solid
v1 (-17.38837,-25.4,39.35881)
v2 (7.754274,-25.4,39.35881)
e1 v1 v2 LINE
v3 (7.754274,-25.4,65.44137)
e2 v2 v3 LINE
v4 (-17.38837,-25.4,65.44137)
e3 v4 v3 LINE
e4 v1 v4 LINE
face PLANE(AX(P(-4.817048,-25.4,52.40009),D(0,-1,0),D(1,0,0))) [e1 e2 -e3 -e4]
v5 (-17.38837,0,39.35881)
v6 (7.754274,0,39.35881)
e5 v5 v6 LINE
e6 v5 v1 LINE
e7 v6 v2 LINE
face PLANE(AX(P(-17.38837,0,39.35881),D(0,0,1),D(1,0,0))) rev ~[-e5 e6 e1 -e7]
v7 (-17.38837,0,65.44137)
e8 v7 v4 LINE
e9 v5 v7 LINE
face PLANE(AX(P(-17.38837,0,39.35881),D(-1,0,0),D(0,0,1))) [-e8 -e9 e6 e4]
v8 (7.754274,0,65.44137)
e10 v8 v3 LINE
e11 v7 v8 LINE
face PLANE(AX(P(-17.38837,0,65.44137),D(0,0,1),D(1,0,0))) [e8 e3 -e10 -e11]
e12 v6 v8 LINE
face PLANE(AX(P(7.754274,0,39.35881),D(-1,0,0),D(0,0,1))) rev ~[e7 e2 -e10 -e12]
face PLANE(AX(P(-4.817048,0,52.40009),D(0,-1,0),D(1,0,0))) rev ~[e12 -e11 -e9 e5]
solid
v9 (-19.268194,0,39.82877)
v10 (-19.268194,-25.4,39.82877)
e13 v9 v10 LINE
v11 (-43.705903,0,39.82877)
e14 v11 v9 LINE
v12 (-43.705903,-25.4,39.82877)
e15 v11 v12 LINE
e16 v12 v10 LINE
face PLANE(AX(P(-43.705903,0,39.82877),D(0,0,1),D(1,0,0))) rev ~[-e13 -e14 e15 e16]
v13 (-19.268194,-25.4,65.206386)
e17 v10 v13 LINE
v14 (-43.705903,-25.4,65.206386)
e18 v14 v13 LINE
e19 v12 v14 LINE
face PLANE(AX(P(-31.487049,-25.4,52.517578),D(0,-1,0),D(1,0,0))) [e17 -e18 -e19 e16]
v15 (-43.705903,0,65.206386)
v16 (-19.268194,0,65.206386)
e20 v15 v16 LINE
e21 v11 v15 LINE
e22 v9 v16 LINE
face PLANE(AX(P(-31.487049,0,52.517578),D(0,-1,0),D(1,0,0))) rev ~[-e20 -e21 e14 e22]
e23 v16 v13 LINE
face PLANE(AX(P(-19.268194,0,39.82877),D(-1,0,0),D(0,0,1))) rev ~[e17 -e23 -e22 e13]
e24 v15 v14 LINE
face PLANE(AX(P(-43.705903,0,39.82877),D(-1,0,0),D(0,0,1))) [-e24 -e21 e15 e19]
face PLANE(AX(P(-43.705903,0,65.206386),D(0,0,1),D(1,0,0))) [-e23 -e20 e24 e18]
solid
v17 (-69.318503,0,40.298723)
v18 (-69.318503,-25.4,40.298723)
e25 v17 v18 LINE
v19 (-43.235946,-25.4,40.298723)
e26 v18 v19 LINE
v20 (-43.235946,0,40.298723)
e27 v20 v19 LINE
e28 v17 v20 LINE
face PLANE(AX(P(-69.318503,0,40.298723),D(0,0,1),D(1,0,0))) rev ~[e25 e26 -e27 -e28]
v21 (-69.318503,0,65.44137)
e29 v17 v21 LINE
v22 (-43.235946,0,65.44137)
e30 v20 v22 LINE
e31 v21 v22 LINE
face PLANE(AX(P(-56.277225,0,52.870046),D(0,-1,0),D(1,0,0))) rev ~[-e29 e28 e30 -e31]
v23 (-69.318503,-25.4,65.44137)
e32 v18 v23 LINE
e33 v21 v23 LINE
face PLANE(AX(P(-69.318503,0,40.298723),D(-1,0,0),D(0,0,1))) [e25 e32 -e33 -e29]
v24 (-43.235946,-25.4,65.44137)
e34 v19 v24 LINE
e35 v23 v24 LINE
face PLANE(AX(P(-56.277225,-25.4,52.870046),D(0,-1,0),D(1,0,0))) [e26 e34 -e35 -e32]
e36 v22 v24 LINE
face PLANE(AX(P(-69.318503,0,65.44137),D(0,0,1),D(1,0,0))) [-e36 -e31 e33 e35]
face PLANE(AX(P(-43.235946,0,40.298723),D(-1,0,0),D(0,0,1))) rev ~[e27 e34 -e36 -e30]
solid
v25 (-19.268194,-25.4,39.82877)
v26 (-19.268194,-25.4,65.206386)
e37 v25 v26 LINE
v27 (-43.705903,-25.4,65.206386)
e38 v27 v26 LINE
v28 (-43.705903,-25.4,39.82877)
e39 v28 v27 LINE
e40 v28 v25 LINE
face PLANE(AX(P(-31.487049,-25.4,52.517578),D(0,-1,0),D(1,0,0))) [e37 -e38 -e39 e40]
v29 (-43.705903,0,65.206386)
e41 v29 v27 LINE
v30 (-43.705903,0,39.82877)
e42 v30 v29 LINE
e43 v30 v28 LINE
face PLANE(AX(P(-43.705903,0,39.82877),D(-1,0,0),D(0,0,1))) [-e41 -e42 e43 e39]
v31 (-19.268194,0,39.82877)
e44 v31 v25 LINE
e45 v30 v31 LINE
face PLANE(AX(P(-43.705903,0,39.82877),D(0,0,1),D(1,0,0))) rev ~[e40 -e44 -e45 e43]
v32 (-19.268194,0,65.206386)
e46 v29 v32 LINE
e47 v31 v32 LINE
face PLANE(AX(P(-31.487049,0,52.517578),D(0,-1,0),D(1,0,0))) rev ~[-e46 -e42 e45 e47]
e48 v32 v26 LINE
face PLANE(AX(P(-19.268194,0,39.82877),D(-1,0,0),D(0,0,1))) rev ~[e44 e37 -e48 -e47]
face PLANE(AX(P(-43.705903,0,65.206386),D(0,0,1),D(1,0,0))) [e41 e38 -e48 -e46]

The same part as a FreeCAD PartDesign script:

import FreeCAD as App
import Part
import Sketcher
Q = App.Units.Quantity


def add_polygon(sketch, points):
    """Adds a closed chain of lines whose ends are joined by coincident constraints."""
    first, n = sketch.GeometryCount, len(points)
    for a, b in zip(points, points[1:] + points[:1]):
        sketch.addGeometry(Part.LineSegment(App.Vector(*a, 0), App.Vector(*b, 0)), False)
    for i in range(n):
        sketch.addConstraint(Sketcher.Constraint("Coincident", first + i, 2, first + (i + 1) % n, 1))

doc = App.newDocument("Part")
body = doc.addObject("PartDesign::Body", "Body")

# Sketch on XZ plane
sketch1 = body.newObject("Sketcher::SketchObject", "Sketch")
sketch1.AttachmentSupport = (doc.getObject("XZ_Plane"), [""])
sketch1.MapMode = "FlatFace"
add_polygon(sketch1, [(-69, 65), (-69, 40), (-43, 40), (-43, 65)])  # lines 0-3
sketch1.addConstraint([
    Sketcher.Constraint("Vertical", 0),
    Sketcher.Constraint("Horizontal", 1),
    Sketcher.Constraint("Vertical", 2),
    Sketcher.Constraint("Horizontal", 3),
    Sketcher.Constraint("DistanceX", 1, 1, 1, 2, Q("26.082557 mm")),
    Sketcher.Constraint("DistanceY", 0, 2, 0, 1, Q("25.142647 mm")),
    Sketcher.Constraint("DistanceY", -1, 1, 2, 2, Q("65.44137 mm")),
    Sketcher.Constraint("DistanceX", 0, 2, -1, 1, Q("69.318503 mm")),
])
pad1 = body.newObject("PartDesign::Pad", "Pad")
pad1.Profile = sketch1
pad1.Length = Q("1 in")
body2 = doc.addObject("PartDesign::Body", "Body001")

# Sketch on XZ plane
sketch2 = body2.newObject("Sketcher::SketchObject", "Sketch001")
sketch2.AttachmentSupport = (doc.getObject("XZ_Plane001"), [""])
sketch2.MapMode = "FlatFace"
add_polygon(sketch2, [(-44, 65), (-44, 40), (-19, 40), (-19, 65)])  # lines 0-3
sketch2.addConstraint([
    Sketcher.Constraint("Vertical", 0),
    Sketcher.Constraint("Horizontal", 1),
    Sketcher.Constraint("Vertical", 2),
    Sketcher.Constraint("Horizontal", 3),
    Sketcher.Constraint("DistanceX", 1, 1, 1, 2, Q("24.437709 mm")),
    Sketcher.Constraint("DistanceY", 0, 2, 0, 1, Q("25.377616 mm")),
    Sketcher.Constraint("DistanceY", -1, 1, 0, 2, Q("39.82877 mm")),
    Sketcher.Constraint("DistanceX", 0, 2, -1, 1, Q("43.705903 mm")),
])
pad2 = body2.newObject("PartDesign::Pad", "Pad001")
pad2.Profile = sketch2
pad2.Length = Q("1 in")
body3 = doc.addObject("PartDesign::Body", "Body002")

# Sketch on XZ plane
sketch3 = body3.newObject("Sketcher::SketchObject", "Sketch002")
sketch3.AttachmentSupport = (doc.getObject("XZ_Plane002"), [""])
sketch3.MapMode = "FlatFace"
add_polygon(sketch3, [(-44, 65), (-44, 40), (-19, 40), (-19, 65)])  # lines 0-3
sketch3.addConstraint([
    Sketcher.Constraint("Vertical", 0),
    Sketcher.Constraint("Horizontal", 1),
    Sketcher.Constraint("Vertical", 2),
    Sketcher.Constraint("Horizontal", 3),
    Sketcher.Constraint("DistanceX", 1, 1, 1, 2, Q("24.437709 mm")),
    Sketcher.Constraint("DistanceY", 0, 2, 0, 1, Q("25.377616 mm")),
    Sketcher.Constraint("DistanceY", -1, 1, 0, 2, Q("39.82877 mm")),
    Sketcher.Constraint("DistanceX", 0, 2, -1, 1, Q("43.705903 mm")),
])
pad3 = body3.newObject("PartDesign::Pad", "Pad002")
pad3.Profile = sketch3
pad3.Length = Q("1 in")
body4 = doc.addObject("PartDesign::Body", "Body003")

# Sketch on XZ plane
sketch4 = body4.newObject("Sketcher::SketchObject", "Sketch003")
sketch4.AttachmentSupport = (doc.getObject("XZ_Plane003"), [""])
sketch4.MapMode = "FlatFace"
add_polygon(sketch4, [(-17, 65), (-17, 39), (8, 39), (8, 65)])  # lines 0-3
sketch4.addConstraint([
    Sketcher.Constraint("Vertical", 0),
    Sketcher.Constraint("Horizontal", 1),
    Sketcher.Constraint("Vertical", 2),
    Sketcher.Constraint("Horizontal", 3),
    Sketcher.Constraint("DistanceY", 0, 2, 0, 1, Q("26.08256 mm")),
    Sketcher.Constraint("DistanceX", 1, 1, 1, 2, Q("25.142644 mm")),
    Sketcher.Constraint("DistanceX", 0, 2, -1, 1, Q("17.38837 mm")),
    Sketcher.Constraint("DistanceY", -1, 1, 0, 2, Q("39.35881 mm")),
])
pad4 = body4.newObject("PartDesign::Pad", "Pad003")
pad4.Profile = sketch4
pad4.Length = Q("1 in")

doc.recompute()
